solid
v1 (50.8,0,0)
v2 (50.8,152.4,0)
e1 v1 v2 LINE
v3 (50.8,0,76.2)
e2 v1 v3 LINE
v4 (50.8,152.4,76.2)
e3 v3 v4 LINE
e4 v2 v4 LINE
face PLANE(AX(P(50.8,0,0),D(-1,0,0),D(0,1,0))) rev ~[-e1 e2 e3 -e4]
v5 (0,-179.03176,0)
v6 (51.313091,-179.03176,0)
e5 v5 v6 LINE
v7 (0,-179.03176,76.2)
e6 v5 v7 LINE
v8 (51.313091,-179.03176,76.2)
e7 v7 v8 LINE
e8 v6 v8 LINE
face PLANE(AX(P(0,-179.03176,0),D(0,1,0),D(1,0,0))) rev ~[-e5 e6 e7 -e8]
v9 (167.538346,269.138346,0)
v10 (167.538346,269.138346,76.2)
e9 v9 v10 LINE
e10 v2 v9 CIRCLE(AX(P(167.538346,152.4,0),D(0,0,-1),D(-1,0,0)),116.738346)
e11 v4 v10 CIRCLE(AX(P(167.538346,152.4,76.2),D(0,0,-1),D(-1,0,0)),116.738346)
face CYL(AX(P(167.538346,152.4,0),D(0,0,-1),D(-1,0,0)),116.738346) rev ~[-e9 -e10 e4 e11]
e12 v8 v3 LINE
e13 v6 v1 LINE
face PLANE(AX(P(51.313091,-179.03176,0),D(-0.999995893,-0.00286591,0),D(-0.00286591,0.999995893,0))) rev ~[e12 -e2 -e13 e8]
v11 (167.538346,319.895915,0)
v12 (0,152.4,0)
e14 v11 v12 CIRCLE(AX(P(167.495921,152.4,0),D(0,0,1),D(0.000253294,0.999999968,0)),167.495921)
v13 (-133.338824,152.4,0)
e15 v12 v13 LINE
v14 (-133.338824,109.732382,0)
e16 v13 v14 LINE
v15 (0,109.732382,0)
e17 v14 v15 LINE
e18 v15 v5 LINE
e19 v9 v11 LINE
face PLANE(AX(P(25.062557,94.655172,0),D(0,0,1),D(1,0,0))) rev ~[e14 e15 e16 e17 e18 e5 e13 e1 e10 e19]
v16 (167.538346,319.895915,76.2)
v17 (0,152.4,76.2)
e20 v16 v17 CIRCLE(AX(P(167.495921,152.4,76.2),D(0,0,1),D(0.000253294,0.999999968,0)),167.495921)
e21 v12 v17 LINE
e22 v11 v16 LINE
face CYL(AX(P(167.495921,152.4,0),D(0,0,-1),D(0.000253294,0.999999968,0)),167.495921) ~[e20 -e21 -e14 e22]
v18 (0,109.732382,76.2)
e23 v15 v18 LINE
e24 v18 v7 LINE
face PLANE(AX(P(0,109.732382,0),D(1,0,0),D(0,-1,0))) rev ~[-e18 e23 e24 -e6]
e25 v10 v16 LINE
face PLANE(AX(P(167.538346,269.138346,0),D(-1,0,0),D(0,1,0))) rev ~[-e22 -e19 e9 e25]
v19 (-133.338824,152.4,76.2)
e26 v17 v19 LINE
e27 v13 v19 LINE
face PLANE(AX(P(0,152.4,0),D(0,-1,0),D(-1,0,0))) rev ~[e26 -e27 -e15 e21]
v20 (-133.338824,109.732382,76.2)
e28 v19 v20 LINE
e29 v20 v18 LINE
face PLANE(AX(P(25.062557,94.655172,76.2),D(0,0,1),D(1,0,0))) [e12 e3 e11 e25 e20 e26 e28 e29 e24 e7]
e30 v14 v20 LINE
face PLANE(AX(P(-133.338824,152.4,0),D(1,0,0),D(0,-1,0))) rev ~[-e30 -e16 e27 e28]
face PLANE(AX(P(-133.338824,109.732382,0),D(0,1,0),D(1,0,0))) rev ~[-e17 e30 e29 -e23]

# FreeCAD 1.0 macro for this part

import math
import FreeCAD as App
import Part
import Sketcher
from FreeCAD import Vector
Q = App.Units.Quantity

doc = App.newDocument("Part")
body = doc.addObject("PartDesign::Body", "Body")

sketch1 = body.newObject("Sketcher::SketchObject", "Sketch")
sketch1.AttachmentSupport = (doc.getObject("XY_Plane"), [""])
sketch1.MapMode = "FlatFace"
sketch1.addGeometry([
    Part.LineSegment(Vector(0, 110, 0), Vector(0, -179, 0)),
    Part.LineSegment(Vector(0, -179, 0), Vector(51, -179, 0)),
    Part.LineSegment(Vector(51, -179, 0), Vector(51, 0, 0)),
    Part.LineSegment(Vector(51, 0, 0), Vector(51, 152, 0)),
    Part.ArcOfCircle(Part.Circle(Vector(168, 152, 0), Vector(0, 0, 1), 117), math.radians(90), math.radians(180)),
    Part.LineSegment(Vector(168, 269, 0), Vector(168, 320, 0)),
    Part.ArcOfCircle(Part.Circle(Vector(167, 152, 0), Vector(0, 0, 1), 167), math.radians(90), math.radians(180)),
    Part.LineSegment(Vector(0, 152, 0), Vector(-133, 152, 0)),
    Part.LineSegment(Vector(-133, 152, 0), Vector(-133, 110, 0)),
    Part.LineSegment(Vector(-133, 110, 0), Vector(0, 110, 0)),
], False)
sketch1.addConstraint([
    Sketcher.Constraint("Coincident", 0, 2, 1, 1),
    Sketcher.Constraint("Coincident", 1, 2, 2, 1),
    Sketcher.Constraint("Coincident", 2, 2, 3, 1),
    Sketcher.Constraint("Tangent", 3, 2, 4, 2),
    Sketcher.Constraint("Coincident", 4, 1, 5, 1),
    Sketcher.Constraint("Coincident", 5, 2, 6, 1),
    Sketcher.Constraint("Coincident", 6, 2, 7, 1),
    Sketcher.Constraint("Coincident", 7, 2, 8, 1),
    Sketcher.Constraint("Coincident", 8, 2, 9, 1),
    Sketcher.Constraint("Coincident", 9, 2, 0, 1),
    Sketcher.Constraint("Vertical", 0),
    Sketcher.Constraint("Horizontal", 1),
    Sketcher.Constraint("Vertical", 3),
    Sketcher.Constraint("Vertical", 5),
    Sketcher.Constraint("Horizontal", 7),
    Sketcher.Constraint("Vertical", 8),
    Sketcher.Constraint("Horizontal", 9),
    Sketcher.Constraint("PointOnObject", 0, 2, -2),
    Sketcher.Constraint("PointOnObject", 2, 2, -1),
    Sketcher.Constraint("PointOnObject", 6, 2, -2),
    Sketcher.Constraint("Horizontal", 4, 3, 6, 3),
    Sketcher.Constraint("Horizontal", 3, 2, 6, 2),
    Sketcher.Constraint("DistanceY", 3, 1, 3, 2, Q("6 in")),
    Sketcher.Constraint("DistanceX", -1, 1, 2, 2, Q("2 in")),
    Sketcher.Constraint("Radius", 6, 167.495921),
    Sketcher.Constraint("Radius", 4, 116.738346),
    Sketcher.Constraint("DistanceX", 1, 1, 1, 2, 51.313091),
    Sketcher.Constraint("DistanceY", 0, 2, 0, 1, 288.764141),
    Sketcher.Constraint("DistanceY", 8, 2, 8, 1, 42.667618),
    Sketcher.Constraint("DistanceX", 7, 2, 7, 1, 133.338824),
    Sketcher.Constraint("DistanceX", -1, 1, 4, 1, 167.538346),
])
pad1 = body.newObject("PartDesign::Pad", "Pad")
pad1.Profile = sketch1
pad1.Length = Q("3 in")

doc.recompute()
